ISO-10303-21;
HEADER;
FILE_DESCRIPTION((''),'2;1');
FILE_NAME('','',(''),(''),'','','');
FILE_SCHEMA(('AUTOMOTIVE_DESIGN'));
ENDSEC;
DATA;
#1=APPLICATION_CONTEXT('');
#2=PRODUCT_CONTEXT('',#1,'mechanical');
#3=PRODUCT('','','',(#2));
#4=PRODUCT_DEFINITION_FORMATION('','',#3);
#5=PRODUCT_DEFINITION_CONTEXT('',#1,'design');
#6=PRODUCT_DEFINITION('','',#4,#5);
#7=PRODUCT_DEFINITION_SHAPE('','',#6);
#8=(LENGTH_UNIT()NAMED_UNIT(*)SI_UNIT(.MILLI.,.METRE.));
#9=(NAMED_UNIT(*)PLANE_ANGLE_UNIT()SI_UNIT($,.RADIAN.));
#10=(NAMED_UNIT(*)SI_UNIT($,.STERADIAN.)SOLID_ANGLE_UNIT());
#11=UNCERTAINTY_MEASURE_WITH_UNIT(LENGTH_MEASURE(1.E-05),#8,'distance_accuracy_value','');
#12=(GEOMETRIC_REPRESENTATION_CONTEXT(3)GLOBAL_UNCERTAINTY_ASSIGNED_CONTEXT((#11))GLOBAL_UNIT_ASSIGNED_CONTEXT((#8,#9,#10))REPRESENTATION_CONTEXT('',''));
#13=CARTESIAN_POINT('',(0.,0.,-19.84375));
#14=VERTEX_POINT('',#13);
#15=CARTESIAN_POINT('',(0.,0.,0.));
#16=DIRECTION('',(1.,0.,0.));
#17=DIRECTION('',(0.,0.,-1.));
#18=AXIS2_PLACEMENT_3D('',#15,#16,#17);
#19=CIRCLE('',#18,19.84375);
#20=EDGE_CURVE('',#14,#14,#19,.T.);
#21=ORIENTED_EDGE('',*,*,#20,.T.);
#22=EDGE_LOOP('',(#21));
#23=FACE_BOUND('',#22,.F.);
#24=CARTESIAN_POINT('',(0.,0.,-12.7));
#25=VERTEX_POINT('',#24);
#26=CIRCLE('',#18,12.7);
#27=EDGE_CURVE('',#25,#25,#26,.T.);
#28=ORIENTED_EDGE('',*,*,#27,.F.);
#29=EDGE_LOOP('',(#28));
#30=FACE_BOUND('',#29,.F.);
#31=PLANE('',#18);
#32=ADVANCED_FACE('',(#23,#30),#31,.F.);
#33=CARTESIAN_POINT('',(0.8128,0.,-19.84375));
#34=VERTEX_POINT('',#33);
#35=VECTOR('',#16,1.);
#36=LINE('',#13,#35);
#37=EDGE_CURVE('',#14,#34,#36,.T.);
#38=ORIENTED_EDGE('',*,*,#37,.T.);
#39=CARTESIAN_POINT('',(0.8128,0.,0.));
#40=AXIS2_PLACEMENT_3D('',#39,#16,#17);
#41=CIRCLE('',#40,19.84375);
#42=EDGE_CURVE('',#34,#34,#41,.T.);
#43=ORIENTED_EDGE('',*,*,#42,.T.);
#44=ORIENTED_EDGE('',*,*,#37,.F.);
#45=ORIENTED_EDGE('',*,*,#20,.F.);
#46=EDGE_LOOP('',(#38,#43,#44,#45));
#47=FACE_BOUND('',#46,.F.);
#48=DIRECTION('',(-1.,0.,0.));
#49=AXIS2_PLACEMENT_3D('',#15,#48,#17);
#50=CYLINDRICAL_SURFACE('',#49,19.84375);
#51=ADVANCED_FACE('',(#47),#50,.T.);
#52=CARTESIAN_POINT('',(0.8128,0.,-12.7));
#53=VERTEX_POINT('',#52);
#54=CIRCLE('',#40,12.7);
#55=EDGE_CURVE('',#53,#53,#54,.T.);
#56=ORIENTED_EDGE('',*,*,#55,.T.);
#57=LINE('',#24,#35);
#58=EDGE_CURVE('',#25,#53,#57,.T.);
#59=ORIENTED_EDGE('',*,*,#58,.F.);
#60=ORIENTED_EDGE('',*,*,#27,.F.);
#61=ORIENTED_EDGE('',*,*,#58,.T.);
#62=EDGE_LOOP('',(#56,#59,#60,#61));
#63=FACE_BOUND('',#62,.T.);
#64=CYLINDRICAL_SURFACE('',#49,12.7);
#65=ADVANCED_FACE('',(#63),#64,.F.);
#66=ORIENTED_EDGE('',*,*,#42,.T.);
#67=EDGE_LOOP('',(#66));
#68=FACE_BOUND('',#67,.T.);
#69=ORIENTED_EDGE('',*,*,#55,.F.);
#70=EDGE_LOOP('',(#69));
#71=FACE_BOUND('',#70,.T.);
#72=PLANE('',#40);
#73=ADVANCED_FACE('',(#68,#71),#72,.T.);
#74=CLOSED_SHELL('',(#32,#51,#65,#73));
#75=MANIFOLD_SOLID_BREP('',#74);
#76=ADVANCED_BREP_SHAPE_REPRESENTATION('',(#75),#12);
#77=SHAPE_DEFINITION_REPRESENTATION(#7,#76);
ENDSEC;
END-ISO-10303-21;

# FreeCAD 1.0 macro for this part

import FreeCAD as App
import Part
import Sketcher
from FreeCAD import Vector
Q = App.Units.Quantity

doc = App.newDocument("Part")
body = doc.addObject("PartDesign::Body", "Body")

# Sketch on YZ plane
sketch1 = doc.addObject("Sketcher::SketchObject", "Sketch")
body.addObject(sketch1)
sketch1.AttachmentSupport = (doc.YZ_Plane, [""])
sketch1.MapMode = "FlatFace"
sketch1.addGeometry(Part.Circle(Vector(0, 0, 0), Vector(0, 0, 1), 20), False)
sketch1.addGeometry(Part.Circle(Vector(0, 0, 0), Vector(0, 0, 1), 13), False)
sketch1.addConstraint(Sketcher.Constraint("Coincident", 0, 3, -1, 1))
sketch1.addConstraint(Sketcher.Constraint("Coincident", 1, 3, -1, 1))
sketch1.addConstraint(Sketcher.Constraint("Diameter", 1, Q("1 in")))
sketch1.addConstraint(Sketcher.Constraint("Diameter", 0, Q("1.5625 in")))
pad1 = doc.addObject("PartDesign::Pad", "Pad")
body.addObject(pad1)
pad1.Profile = sketch1
pad1.Length = Q("0.032 in")

doc.recompute()
